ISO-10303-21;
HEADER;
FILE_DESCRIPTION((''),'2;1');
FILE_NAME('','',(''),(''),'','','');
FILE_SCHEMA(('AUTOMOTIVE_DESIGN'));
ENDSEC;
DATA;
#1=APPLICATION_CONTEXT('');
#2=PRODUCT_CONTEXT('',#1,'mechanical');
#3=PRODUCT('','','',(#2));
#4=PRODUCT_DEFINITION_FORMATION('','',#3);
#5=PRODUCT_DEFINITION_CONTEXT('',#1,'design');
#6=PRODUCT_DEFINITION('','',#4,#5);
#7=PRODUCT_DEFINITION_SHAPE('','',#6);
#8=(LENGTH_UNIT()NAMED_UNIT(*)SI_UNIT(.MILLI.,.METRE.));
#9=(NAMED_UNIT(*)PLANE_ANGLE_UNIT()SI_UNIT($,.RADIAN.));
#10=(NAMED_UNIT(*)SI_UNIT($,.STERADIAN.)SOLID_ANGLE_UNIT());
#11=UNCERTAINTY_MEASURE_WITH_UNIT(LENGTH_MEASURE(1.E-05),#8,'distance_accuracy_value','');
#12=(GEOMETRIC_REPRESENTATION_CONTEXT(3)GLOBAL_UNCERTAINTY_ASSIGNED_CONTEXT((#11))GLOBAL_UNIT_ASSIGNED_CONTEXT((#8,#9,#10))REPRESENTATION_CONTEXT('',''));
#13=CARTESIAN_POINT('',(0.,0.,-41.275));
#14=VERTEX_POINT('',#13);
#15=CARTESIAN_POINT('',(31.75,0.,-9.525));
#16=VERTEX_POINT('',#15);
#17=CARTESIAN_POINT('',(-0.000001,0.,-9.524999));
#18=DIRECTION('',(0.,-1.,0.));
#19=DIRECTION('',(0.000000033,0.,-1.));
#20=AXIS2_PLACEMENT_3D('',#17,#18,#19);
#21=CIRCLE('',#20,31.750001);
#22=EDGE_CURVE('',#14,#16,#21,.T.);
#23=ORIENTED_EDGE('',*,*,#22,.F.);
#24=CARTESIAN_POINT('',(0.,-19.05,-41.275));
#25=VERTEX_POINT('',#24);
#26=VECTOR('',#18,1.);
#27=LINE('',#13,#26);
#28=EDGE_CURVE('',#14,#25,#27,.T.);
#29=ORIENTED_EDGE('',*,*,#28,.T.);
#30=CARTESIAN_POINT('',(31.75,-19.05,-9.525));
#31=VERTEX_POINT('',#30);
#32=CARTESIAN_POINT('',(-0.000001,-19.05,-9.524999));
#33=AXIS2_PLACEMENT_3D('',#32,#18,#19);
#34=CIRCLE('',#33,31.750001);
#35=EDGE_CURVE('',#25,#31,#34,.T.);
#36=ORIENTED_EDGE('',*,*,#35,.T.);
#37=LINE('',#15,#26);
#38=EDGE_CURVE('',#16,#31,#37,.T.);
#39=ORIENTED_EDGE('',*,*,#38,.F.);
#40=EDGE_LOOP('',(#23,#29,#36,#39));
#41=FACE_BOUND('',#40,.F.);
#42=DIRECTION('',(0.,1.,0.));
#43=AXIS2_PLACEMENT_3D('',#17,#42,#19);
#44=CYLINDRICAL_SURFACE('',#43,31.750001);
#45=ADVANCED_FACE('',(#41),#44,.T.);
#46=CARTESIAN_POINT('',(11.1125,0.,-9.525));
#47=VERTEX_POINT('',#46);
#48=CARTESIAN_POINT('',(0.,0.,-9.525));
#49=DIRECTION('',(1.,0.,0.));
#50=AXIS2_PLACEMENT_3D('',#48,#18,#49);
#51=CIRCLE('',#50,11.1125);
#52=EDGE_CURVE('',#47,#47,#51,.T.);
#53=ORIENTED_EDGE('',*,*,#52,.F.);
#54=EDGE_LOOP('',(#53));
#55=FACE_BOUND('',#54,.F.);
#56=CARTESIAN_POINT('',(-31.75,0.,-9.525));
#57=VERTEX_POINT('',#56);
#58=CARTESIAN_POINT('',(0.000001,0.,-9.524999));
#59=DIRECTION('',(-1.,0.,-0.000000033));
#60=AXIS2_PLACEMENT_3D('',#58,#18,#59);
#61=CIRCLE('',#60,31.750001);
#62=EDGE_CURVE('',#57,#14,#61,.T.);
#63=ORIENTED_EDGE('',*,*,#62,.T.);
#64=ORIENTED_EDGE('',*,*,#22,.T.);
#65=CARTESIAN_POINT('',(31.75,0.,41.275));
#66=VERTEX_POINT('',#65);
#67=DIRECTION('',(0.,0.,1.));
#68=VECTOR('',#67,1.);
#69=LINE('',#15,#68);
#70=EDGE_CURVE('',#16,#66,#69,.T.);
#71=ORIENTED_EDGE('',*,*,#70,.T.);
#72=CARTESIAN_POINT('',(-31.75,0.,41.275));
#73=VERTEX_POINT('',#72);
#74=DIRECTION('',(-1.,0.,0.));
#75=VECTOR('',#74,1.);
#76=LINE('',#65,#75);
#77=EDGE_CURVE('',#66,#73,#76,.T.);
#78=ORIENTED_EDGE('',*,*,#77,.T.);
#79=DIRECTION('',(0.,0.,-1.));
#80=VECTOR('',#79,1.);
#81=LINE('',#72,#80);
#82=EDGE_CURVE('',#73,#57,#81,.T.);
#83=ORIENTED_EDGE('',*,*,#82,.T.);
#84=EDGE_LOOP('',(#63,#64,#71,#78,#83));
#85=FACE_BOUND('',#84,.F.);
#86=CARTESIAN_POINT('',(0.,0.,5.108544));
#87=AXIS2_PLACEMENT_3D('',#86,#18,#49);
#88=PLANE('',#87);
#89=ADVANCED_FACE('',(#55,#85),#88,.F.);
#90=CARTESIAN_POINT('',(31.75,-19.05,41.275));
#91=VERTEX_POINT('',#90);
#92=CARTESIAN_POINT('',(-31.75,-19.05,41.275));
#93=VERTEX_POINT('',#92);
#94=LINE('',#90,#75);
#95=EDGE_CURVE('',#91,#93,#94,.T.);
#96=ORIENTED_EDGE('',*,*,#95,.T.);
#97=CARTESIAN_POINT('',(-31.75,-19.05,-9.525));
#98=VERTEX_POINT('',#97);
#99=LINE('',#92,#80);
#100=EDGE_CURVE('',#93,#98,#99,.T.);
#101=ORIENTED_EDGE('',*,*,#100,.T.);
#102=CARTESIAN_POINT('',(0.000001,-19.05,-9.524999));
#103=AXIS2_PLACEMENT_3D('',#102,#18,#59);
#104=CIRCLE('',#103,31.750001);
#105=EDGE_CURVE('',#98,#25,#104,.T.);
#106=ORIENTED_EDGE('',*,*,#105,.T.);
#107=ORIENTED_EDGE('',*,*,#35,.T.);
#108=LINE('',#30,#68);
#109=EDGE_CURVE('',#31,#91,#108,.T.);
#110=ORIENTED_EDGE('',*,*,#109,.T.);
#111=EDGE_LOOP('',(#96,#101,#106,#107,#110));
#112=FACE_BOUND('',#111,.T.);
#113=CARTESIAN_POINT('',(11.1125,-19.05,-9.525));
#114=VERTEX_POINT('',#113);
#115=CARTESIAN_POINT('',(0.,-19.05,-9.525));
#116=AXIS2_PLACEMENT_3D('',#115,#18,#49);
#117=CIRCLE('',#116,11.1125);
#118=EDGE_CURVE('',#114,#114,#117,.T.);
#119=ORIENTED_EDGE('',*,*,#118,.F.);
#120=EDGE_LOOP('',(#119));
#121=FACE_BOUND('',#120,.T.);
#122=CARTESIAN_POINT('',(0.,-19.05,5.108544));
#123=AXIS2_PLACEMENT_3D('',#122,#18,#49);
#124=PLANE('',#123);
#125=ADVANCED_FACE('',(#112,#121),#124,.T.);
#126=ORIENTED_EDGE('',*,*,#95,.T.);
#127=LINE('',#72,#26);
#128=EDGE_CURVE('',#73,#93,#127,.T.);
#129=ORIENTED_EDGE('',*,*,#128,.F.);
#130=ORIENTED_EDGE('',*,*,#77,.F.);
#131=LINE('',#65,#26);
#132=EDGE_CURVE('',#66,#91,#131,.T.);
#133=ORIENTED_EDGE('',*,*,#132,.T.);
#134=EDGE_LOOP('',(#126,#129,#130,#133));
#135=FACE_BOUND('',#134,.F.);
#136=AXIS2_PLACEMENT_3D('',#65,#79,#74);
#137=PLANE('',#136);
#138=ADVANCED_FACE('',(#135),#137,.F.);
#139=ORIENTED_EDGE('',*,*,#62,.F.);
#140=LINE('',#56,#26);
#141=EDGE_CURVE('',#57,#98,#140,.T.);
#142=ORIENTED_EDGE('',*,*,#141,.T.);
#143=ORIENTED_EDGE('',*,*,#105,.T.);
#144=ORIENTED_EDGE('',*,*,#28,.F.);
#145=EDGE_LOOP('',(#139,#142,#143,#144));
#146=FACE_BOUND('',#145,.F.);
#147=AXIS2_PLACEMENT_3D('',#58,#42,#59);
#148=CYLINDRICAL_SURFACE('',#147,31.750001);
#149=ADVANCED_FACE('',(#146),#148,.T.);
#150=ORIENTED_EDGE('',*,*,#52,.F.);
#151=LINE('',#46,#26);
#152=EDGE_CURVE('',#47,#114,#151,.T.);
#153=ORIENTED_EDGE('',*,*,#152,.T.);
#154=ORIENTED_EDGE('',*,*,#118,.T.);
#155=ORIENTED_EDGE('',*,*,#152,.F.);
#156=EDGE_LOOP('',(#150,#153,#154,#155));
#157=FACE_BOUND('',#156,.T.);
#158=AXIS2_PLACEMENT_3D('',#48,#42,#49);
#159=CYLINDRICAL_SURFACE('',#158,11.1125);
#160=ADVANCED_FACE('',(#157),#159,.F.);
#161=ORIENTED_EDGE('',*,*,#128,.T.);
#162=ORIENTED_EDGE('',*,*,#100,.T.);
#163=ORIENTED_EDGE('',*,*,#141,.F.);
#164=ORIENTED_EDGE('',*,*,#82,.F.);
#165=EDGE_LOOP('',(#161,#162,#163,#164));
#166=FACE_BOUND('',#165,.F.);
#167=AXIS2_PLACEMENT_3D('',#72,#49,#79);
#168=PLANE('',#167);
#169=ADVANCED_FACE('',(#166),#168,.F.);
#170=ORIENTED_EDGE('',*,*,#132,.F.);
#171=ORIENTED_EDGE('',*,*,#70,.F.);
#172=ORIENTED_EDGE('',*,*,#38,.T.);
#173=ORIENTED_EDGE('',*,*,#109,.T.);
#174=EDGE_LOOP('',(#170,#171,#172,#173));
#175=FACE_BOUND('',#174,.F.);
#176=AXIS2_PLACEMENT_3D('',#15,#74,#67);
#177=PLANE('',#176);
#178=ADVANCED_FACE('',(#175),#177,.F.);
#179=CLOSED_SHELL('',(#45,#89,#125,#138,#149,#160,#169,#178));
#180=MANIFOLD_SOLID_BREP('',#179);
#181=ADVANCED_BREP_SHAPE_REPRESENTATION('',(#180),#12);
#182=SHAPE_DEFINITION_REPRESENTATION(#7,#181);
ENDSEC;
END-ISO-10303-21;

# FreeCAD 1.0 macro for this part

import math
import FreeCAD as App
import Part
import Sketcher
from FreeCAD import Vector
Q = App.Units.Quantity

doc = App.newDocument("Part")
body = doc.addObject("PartDesign::Body", "Body")

# Sketch on XZ plane
sketch1 = body.newObject("Sketcher::SketchObject", "Sketch")
sketch1.AttachmentSupport = (doc.getObject("XZ_Plane"), [""])
sketch1.MapMode = "FlatFace"
sketch1.addGeometry([
    Part.LineSegment(Vector(31.75, 41.275, 0), Vector(-31.75, 41.275, 0)),  # 0
    Part.LineSegment(Vector(-31.75, 41.275, 0), Vector(-31.75, -9.525, 0)),  # 1
    Part.ArcOfCircle(Part.Circle(Vector(0.000001, -9.524999, 0), Vector(0, 0, 1), 31.750001), math.radians(-179.999998), math.radians(-90.000002)),  # 2
    Part.ArcOfCircle(Part.Circle(Vector(-0.000001, -9.524999, 0), Vector(0, 0, 1), 31.750001), math.radians(-89.999998), math.radians(-0.000002)),  # 3
    Part.LineSegment(Vector(31.75, -9.525, 0), Vector(31.75, 41.275, 0)),  # 4
    Part.Circle(Vector(0, -9.525, 0), Vector(0, 0, 1), 11.1125),  # 5
], False)
sketch1.addConstraint([
    Sketcher.Constraint("Coincident", 0, 2, 1, 1),
    Sketcher.Constraint("Tangent", 1, 2, 2, 1),
    Sketcher.Constraint("Tangent", 2, 2, 3, 1),
    Sketcher.Constraint("Tangent", 3, 2, 4, 1),
    Sketcher.Constraint("Coincident", 4, 2, 0, 1),
    Sketcher.Constraint("Horizontal", 0),
    Sketcher.Constraint("Vertical", 1),
    Sketcher.Constraint("Vertical", 4),
    Sketcher.Constraint("Coincident", 5, 3, 2, 3),
    Sketcher.Constraint("Equal", 2, 3),
    Sketcher.Constraint("PointOnObject", 2, 3, -2),
    Sketcher.Constraint("PointOnObject", 2, 2, -2),
    Sketcher.Constraint("DistanceY", 1, 2, 1, 1, Q("2 in")),
    Sketcher.Constraint("Radius", 2, Q("1.25 in")),
    Sketcher.Constraint("Diameter", 5, Q("0.875 in")),
    Sketcher.Constraint("DistanceY", 2, 3, -1, 1, Q("0.375 in")),
])
pad1 = body.newObject("PartDesign::Pad", "Pad")
pad1.Profile = sketch1
pad1.Length = Q("0.75 in")

doc.recompute()
